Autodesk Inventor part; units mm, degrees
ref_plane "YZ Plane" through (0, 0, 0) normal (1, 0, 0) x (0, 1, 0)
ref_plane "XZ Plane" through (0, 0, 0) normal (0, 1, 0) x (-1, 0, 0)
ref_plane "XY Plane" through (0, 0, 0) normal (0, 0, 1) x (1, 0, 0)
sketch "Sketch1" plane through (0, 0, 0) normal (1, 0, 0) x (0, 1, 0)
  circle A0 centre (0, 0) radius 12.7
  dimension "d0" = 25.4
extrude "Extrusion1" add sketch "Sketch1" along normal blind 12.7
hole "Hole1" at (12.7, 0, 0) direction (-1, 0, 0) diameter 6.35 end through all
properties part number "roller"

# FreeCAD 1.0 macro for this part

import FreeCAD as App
import Part
import Sketcher

V = App.Vector
Q = App.Units.Quantity

doc = App.newDocument("Part")
body = doc.addObject("PartDesign::Body", "Body")

# Sketch on YZ plane
sketch1 = doc.addObject("Sketcher::SketchObject", "Sketch")
body.addObject(sketch1)
sketch1.AttachmentSupport = (doc.YZ_Plane, [""])
sketch1.MapMode = "FlatFace"
sketch1.addGeometry(Part.Circle(V(0, 0, 0), V(0, 0, 1), 12.7), False)
sketch1.addConstraint(Sketcher.Constraint("Coincident", 0, 3, -1, 1))
sketch1.addConstraint(Sketcher.Constraint("Diameter", 0, Q("1 in")))
pad1 = doc.addObject("PartDesign::Pad", "Pad")
body.addObject(pad1)
pad1.Profile = sketch1
pad1.Length = Q("0.5 in")

# Sketch on YZ plane
sketch2 = doc.addObject("Sketcher::SketchObject", "Sketch001")
body.addObject(sketch2)
sketch2.AttachmentSupport = (doc.YZ_Plane, [""])
sketch2.MapMode = "FlatFace"
sketch2.AttachmentOffset = App.Placement(V(0, 0, 0.5 * 25.4), App.Rotation())
sketch2.addGeometry(Part.Circle(V(0, 0, 0), V(0, 0, 1), 3.175), False)
sketch2.addConstraint(Sketcher.Constraint("Coincident", 0, 3, -1, 1))
sketch2.addConstraint(Sketcher.Constraint("Diameter", 0, Q("0.25 in")))
doc.recompute()
hole = doc.addObject("PartDesign::Hole", "Hole")
body.addObject(hole)
hole.Profile = sketch2
hole.ThreadType = "None"
hole.Diameter = Q("0.25 in")
hole.DepthType = "ThroughAll"

doc.recompute()
